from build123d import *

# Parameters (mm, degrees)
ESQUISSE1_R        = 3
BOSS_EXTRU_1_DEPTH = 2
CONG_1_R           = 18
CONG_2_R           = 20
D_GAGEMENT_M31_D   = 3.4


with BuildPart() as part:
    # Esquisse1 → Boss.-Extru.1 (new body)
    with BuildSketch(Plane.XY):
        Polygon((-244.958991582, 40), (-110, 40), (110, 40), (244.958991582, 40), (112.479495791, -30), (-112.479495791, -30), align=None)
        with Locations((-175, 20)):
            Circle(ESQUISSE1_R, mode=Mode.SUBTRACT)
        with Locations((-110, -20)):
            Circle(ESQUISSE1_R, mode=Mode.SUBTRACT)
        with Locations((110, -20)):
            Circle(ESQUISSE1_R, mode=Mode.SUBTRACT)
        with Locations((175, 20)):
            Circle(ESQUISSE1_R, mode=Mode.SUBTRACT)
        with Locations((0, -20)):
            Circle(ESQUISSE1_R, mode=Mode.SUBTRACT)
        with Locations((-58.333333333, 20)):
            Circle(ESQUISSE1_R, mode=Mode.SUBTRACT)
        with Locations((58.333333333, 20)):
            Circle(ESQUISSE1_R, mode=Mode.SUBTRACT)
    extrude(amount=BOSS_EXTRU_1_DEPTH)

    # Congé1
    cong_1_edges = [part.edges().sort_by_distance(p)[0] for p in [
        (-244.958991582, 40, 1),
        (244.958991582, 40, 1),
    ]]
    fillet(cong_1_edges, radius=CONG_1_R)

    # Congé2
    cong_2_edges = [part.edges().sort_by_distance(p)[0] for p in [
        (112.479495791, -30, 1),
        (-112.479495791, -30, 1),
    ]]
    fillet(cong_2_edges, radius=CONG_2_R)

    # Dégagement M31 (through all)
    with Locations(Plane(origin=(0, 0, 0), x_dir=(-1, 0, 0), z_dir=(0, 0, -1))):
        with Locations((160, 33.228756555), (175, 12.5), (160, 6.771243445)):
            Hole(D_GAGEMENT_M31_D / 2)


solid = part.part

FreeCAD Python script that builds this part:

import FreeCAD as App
import Part
import Sketcher
from FreeCAD import Vector
Q = App.Units.Quantity


def edges_at(feature, points):
    """Names of the edges that pass closest to the given points."""
    edges = feature.Shape.Edges
    near = lambda p: min(range(len(edges)), key=lambda i: edges[i].distToShape(Part.Vertex(*p))[0])
    return sorted({f"Edge{near(p) + 1}" for p in points})

doc = App.newDocument("Part")
body = doc.addObject("PartDesign::Body", "Body")

# Sketch on XY plane
sketch1 = body.newObject("Sketcher::SketchObject", "Sketch")
sketch1.AttachmentSupport = (doc.getObject("XY_Plane"), [""])
sketch1.MapMode = "FlatFace"
sketch1.addGeometry([
    Part.LineSegment(Vector(245, 40, 0), Vector(-245, 40, 0)),  # 0
    Part.LineSegment(Vector(-245, 40, 0), Vector(-112.5, -30, 0)),  # 1
    Part.LineSegment(Vector(-112.5, -30, 0), Vector(112.5, -30, 0)),  # 2
    Part.LineSegment(Vector(112.5, -30, 0), Vector(245, 40, 0)),  # 3
    Part.Circle(Vector(110, -20, 0), Vector(0, 0, 1), 3),  # 4
    Part.Circle(Vector(0, -20, 0), Vector(0, 0, 1), 3),  # 5
    Part.Circle(Vector(-110, -20, 0), Vector(0, 0, 1), 3),  # 6
    Part.Circle(Vector(175, 20, 0), Vector(0, 0, 1), 3),  # 7
    Part.Circle(Vector(58.3, 20, 0), Vector(0, 0, 1), 3),  # 8
    Part.Circle(Vector(-58.3, 20, 0), Vector(0, 0, 1), 3),  # 9
    Part.Circle(Vector(-175, 20, 0), Vector(0, 0, 1), 3),  # 10
], False)
sketch1.addConstraint([
    Sketcher.Constraint("Coincident", 0, 2, 1, 1),
    Sketcher.Constraint("Coincident", 1, 2, 2, 1),
    Sketcher.Constraint("Coincident", 2, 2, 3, 1),
    Sketcher.Constraint("Coincident", 3, 2, 0, 1),
    Sketcher.Constraint("Horizontal", 0),
    Sketcher.Constraint("Horizontal", 2),
    Sketcher.Constraint("Equal", 4, 5),
    Sketcher.Constraint("Equal", 5, 6),
    Sketcher.Constraint("Equal", 6, 7),
    Sketcher.Constraint("Equal", 7, 8),
    Sketcher.Constraint("Equal", 8, 9),
    Sketcher.Constraint("Equal", 9, 10),
    Sketcher.Constraint("Symmetric", 4, 3, 6, 3, -2),
    Sketcher.Constraint("Symmetric", 8, 3, 9, 3, -2),
    Sketcher.Constraint("Symmetric", 7, 3, 10, 3, -2),
    Sketcher.Constraint("PointOnObject", 5, 3, -2),
    Sketcher.Constraint("Horizontal", 4, 3, 5, 3),
    Sketcher.Constraint("Horizontal", 7, 3, 8, 3),
    Sketcher.Constraint("Equal", 1, 3),
    Sketcher.Constraint("Diameter", 4, Q("6 mm")),
    Sketcher.Constraint("DistanceX", -1, 1, 4, 3, Q("110 mm")),
    Sketcher.Constraint("DistanceY", 4, 3, -1, 1, Q("20 mm")),
    Sketcher.Constraint("DistanceX", -1, 1, 7, 3, Q("175 mm")),
    Sketcher.Constraint("DistanceY", -1, 1, 7, 3, Q("20 mm")),
    Sketcher.Constraint("DistanceY", -1, 1, 0, 2, Q("40 mm")),
    Sketcher.Constraint("DistanceY", 1, 2, -1, 1, Q("30 mm")),
    Sketcher.Constraint("DistanceX", 2, 1, 2, 2, Q("224.958992 mm")),
    Sketcher.Constraint("DistanceX", 0, 2, 0, 1, Q("489.917983 mm")),
    Sketcher.Constraint("DistanceX", 0, 2, -1, 1, Q("244.958992 mm")),
    Sketcher.Constraint("DistanceX", 0, 2, 9, 3, Q("186.625658 mm")),
])
pad1 = body.newObject("PartDesign::Pad", "Pad")
pad1.Profile = sketch1
pad1.Length = 2
doc.recompute()

fillet = body.newObject("PartDesign::Fillet", "Fillet")
fillet.Base = (pad1, edges_at(pad1, [(-244.959, 40, 1), (244.959, 40, 1)]))
fillet.Radius = 18
doc.recompute()

fillet2 = body.newObject("PartDesign::Fillet", "Fillet001")
fillet2.Base = (fillet, edges_at(fillet, [(112.479, -30, 1), (-112.479, -30, 1)]))
fillet2.Radius = 20

# Sketch on XY plane
sketch2 = body.newObject("Sketcher::SketchObject", "Sketch001")
sketch2.AttachmentSupport = (doc.getObject("XY_Plane"), [""])
sketch2.MapMode = "FlatFace"
sketch2.addGeometry([
    Part.Circle(Vector(-160, 33.2, 0), Vector(0, 0, 1), 1.7),
    Part.Circle(Vector(-175, 12.5, 0), Vector(0, 0, 1), 1.7),
    Part.Circle(Vector(-160, 6.8, 0), Vector(0, 0, 1), 1.7),
], False)
sketch2.addConstraint([
    Sketcher.Constraint("Equal", 0, 1),
    Sketcher.Constraint("Equal", 1, 2),
    Sketcher.Constraint("Vertical", 0, 3, 2, 3),
    Sketcher.Constraint("Diameter", 0, Q("3.4 mm")),
    Sketcher.Constraint("DistanceX", 0, 3, -1, 1, Q("160 mm")),
    Sketcher.Constraint("DistanceX", 1, 3, -1, 1, Q("175 mm")),
    Sketcher.Constraint("DistanceY", -1, 1, 1, 3, Q("12.5 mm")),
    Sketcher.Constraint("DistanceY", -1, 1, 0, 3, Q("33.228757 mm")),
    Sketcher.Constraint("DistanceY", -1, 1, 2, 3, Q("6.771243 mm")),
])
doc.recompute()
hole = body.newObject("PartDesign::Hole", "Hole")
hole.Profile = sketch2
hole.ThreadType = "None"
hole.Diameter = 3.4
hole.DepthType = "ThroughAll"
hole.Reversed = True

doc.recompute()
